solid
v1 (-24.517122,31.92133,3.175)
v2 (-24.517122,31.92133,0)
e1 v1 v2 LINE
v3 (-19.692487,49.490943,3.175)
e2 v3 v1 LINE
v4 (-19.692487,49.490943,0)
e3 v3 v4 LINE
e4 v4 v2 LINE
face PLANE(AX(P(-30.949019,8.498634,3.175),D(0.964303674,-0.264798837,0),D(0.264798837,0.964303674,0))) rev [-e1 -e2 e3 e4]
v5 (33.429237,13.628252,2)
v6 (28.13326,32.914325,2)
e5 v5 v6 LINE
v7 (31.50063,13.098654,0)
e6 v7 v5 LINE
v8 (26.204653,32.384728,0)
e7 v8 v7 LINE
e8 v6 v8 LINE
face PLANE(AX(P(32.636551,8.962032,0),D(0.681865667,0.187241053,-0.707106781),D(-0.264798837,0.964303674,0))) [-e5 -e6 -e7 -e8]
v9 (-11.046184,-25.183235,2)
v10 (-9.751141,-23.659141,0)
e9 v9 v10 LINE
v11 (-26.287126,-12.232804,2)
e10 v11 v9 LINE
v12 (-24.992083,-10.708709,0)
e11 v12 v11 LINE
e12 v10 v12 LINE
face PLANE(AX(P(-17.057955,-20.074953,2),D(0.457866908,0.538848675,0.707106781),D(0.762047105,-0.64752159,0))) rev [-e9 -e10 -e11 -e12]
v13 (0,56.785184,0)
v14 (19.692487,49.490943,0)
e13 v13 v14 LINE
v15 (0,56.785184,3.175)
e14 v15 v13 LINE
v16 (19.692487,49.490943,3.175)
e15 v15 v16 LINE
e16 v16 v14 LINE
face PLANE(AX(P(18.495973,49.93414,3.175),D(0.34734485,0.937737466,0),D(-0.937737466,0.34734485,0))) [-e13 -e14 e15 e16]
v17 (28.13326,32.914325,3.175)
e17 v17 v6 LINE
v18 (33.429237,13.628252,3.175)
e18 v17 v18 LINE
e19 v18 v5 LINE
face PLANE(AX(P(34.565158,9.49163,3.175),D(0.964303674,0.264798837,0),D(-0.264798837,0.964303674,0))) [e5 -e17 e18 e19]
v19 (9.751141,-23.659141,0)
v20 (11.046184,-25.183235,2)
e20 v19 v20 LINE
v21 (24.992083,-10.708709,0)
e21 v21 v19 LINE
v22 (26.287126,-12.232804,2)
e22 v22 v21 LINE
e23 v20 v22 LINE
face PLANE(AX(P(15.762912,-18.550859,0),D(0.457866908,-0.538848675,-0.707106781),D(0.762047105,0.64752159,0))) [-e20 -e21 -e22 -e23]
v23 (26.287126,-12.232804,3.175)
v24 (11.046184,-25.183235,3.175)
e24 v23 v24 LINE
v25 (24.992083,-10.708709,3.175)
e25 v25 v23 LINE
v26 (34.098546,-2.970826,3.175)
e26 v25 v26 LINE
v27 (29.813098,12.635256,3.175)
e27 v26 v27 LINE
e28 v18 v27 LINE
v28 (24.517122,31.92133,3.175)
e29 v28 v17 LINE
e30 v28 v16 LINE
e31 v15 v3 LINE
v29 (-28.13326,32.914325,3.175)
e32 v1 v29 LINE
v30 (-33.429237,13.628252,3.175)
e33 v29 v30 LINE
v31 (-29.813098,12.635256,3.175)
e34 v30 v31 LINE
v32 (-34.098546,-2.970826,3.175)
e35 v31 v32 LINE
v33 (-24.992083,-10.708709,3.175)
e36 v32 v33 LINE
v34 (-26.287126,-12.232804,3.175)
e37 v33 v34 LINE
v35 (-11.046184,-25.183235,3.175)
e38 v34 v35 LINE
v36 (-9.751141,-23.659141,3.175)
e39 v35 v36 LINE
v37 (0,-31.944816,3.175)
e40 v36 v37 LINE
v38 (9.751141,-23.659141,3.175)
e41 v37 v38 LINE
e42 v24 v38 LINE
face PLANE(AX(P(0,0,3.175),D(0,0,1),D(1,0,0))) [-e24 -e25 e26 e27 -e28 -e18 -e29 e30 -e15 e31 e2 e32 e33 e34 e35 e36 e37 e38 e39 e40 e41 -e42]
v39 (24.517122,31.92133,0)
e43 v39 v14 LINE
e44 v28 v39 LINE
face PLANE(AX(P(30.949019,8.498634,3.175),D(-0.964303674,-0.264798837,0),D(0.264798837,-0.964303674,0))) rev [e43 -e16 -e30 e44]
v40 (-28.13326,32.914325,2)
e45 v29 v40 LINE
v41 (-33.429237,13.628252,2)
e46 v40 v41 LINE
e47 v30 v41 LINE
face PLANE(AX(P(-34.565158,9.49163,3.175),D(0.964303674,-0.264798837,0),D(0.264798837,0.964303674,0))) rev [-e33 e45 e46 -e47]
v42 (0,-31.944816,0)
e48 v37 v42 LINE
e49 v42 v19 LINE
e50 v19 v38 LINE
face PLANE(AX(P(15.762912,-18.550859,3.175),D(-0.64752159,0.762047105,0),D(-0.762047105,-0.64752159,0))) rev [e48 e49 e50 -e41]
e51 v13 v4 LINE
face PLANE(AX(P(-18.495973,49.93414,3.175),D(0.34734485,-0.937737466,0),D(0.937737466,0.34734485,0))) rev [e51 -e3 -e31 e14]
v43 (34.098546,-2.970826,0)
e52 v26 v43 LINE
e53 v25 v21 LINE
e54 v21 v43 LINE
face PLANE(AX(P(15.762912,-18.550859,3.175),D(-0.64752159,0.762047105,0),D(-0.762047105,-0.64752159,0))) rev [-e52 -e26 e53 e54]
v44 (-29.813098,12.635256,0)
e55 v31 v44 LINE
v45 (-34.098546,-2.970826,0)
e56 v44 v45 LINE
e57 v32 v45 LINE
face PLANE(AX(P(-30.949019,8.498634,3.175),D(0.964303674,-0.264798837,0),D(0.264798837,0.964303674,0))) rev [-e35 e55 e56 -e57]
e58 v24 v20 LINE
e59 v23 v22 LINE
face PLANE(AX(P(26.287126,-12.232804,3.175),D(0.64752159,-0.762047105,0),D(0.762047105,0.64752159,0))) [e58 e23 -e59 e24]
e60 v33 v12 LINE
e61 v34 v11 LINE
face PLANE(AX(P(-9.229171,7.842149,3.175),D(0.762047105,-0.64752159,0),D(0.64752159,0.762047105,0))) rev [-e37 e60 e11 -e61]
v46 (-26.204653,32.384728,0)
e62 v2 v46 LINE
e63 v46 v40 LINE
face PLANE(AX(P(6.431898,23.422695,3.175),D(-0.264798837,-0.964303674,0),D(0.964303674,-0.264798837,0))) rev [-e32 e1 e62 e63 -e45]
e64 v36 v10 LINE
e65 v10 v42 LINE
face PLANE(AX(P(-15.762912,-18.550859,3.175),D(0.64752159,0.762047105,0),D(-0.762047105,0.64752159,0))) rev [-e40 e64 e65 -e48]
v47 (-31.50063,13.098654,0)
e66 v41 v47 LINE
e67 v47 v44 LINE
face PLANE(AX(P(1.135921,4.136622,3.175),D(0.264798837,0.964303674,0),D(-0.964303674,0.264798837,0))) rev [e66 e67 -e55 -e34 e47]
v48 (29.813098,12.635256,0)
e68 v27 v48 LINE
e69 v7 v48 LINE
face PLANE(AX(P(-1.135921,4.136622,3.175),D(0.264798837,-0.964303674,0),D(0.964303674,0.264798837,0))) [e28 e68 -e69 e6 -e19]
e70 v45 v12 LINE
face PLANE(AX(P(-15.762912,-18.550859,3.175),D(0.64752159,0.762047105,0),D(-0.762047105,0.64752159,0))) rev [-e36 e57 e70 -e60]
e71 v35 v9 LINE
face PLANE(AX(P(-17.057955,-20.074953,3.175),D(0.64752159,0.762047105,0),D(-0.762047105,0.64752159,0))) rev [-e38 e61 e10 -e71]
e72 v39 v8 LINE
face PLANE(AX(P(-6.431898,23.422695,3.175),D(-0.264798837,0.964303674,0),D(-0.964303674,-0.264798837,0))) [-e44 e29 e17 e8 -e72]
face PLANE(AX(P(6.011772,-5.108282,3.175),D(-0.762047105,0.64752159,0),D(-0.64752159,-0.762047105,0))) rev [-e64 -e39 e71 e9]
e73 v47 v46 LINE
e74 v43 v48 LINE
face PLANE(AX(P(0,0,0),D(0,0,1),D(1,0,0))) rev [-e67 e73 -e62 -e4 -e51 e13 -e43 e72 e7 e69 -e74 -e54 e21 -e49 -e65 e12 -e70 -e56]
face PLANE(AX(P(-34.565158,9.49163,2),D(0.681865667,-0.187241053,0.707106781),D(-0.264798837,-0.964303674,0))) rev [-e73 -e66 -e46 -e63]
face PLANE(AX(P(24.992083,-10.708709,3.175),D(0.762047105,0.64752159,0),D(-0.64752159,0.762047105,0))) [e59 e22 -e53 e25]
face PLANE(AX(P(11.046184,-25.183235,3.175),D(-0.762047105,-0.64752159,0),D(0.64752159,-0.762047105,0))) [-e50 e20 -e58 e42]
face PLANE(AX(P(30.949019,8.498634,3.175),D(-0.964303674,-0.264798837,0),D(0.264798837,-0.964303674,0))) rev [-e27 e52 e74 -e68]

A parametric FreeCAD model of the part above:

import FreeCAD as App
import Part
import Sketcher
from FreeCAD import Vector
Q = App.Units.Quantity


def edges_at(feature, points):
    """Names of the edges that pass closest to the given points."""
    edges = feature.Shape.Edges
    near = lambda p: min(range(len(edges)), key=lambda i: edges[i].distToShape(Part.Vertex(*p))[0])
    return sorted({f"Edge{near(p) + 1}" for p in points})


def add_polygon(sketch, points):
    """Adds a closed chain of lines whose ends are joined by coincident constraints."""
    first, n = sketch.GeometryCount, len(points)
    for a, b in zip(points, points[1:] + points[:1]):
        sketch.addGeometry(Part.LineSegment(App.Vector(*a, 0), App.Vector(*b, 0)), False)
    for i in range(n):
        sketch.addConstraint(Sketcher.Constraint("Coincident", first + i, 2, first + (i + 1) % n, 1))

doc = App.newDocument("Part")
body = doc.addObject("PartDesign::Body", "Body")

# Sketch on XY plane
sketch1 = body.newObject("Sketcher::SketchObject", "Sketch")
sketch1.AttachmentSupport = (doc.getObject("XY_Plane"), [""])
sketch1.MapMode = "FlatFace"
add_polygon(sketch1, [(-24.5, 31.9), (-28.1, 32.9), (-33.4, 13.6), (-29.8, 12.6), (-34.1, -3), (-25, -10.7), (-26.3, -12.2), (-11, -25.2), (-9.8, -23.7), (0, -31.9), (9.8, -23.7), (11, -25.2), (26.3, -12.2), (25, -10.7), (34.1, -3), (29.8, 12.6), (33.4, 13.6), (28.1, 32.9), (24.5, 31.9), (19.7, 49.5), (0, 56.8), (-19.7, 49.5)])  # lines 0-21
sketch1.addConstraint([
    Sketcher.Constraint("Symmetric", 7, 2, 9, 2, -2),
    Sketcher.Constraint("Symmetric", 6, 2, 10, 2, -2),
    Sketcher.Constraint("Symmetric", 5, 2, 11, 2, -2),
    Sketcher.Constraint("Symmetric", 4, 2, 12, 2, -2),
    Sketcher.Constraint("Symmetric", 3, 2, 13, 2, -2),
    Sketcher.Constraint("Symmetric", 2, 2, 14, 2, -2),
    Sketcher.Constraint("Symmetric", 1, 2, 15, 2, -2),
    Sketcher.Constraint("Symmetric", 0, 2, 16, 2, -2),
    Sketcher.Constraint("Symmetric", 18, 2, 20, 2, -2),
    Sketcher.Constraint("Symmetric", 17, 2, 21, 2, -2),
    Sketcher.Constraint("PointOnObject", 8, 2, -2),
    Sketcher.Constraint("PointOnObject", 19, 2, -2),
    Sketcher.Constraint("Perpendicular", 0, 1),
    Sketcher.Constraint("Perpendicular", 1, 2),
    Sketcher.Constraint("Perpendicular", 2, 3),
    Sketcher.Constraint("Perpendicular", 4, 5),
    Sketcher.Constraint("Perpendicular", 5, 6),
    Sketcher.Constraint("Perpendicular", 6, 7),
    Sketcher.Constraint("Perpendicular", 7, 8),
    Sketcher.Constraint("Perpendicular", 17, 18),
    Sketcher.Constraint("Equal", 0, 2),
    Sketcher.Constraint("Equal", 1, 6),
    Sketcher.Constraint("Equal", 5, 7),
    Sketcher.Constraint("Distance", 1, Q("20 mm")),
    Sketcher.Constraint("Distance", 5, Q("2 mm")),
    Sketcher.Constraint("Distance", 19, Q("21 mm")),
    Sketcher.Constraint("Distance", 0, Q("3.75 mm")),
    Sketcher.Constraint("Distance", 4, Q("11.95 mm")),
    Sketcher.Constraint("Distance", 18, Q("18.22 mm")),
    Sketcher.Constraint("DistanceX", 2, 2, -1, 1, Q("29.813098 mm")),
    Sketcher.Constraint("DistanceX", 4, 2, 6, 2, Q("13.945899 mm")),
    Sketcher.Constraint("Distance", 8, Q("12.795981 mm")),
    Sketcher.Constraint("DistanceX", 0, 2, -1, 1, Q("28.13326 mm")),
    Sketcher.Constraint("DistanceY", -1, 1, 1, 2, Q("13.628252 mm")),
])
pad1 = body.newObject("PartDesign::Pad", "Pad")
pad1.Profile = sketch1
pad1.Length = 3.175
doc.recompute()

chamfer = body.newObject("PartDesign::Chamfer", "Chamfer")
chamfer.Base = (pad1, edges_at(pad1, [
    (18.667, -18.708, 0),
    (-18.667, -18.708, 0),
    (-30.781, 23.271, 0),
    (30.781, 23.271, 0),
]))
chamfer.Size = 2

doc.recompute()
